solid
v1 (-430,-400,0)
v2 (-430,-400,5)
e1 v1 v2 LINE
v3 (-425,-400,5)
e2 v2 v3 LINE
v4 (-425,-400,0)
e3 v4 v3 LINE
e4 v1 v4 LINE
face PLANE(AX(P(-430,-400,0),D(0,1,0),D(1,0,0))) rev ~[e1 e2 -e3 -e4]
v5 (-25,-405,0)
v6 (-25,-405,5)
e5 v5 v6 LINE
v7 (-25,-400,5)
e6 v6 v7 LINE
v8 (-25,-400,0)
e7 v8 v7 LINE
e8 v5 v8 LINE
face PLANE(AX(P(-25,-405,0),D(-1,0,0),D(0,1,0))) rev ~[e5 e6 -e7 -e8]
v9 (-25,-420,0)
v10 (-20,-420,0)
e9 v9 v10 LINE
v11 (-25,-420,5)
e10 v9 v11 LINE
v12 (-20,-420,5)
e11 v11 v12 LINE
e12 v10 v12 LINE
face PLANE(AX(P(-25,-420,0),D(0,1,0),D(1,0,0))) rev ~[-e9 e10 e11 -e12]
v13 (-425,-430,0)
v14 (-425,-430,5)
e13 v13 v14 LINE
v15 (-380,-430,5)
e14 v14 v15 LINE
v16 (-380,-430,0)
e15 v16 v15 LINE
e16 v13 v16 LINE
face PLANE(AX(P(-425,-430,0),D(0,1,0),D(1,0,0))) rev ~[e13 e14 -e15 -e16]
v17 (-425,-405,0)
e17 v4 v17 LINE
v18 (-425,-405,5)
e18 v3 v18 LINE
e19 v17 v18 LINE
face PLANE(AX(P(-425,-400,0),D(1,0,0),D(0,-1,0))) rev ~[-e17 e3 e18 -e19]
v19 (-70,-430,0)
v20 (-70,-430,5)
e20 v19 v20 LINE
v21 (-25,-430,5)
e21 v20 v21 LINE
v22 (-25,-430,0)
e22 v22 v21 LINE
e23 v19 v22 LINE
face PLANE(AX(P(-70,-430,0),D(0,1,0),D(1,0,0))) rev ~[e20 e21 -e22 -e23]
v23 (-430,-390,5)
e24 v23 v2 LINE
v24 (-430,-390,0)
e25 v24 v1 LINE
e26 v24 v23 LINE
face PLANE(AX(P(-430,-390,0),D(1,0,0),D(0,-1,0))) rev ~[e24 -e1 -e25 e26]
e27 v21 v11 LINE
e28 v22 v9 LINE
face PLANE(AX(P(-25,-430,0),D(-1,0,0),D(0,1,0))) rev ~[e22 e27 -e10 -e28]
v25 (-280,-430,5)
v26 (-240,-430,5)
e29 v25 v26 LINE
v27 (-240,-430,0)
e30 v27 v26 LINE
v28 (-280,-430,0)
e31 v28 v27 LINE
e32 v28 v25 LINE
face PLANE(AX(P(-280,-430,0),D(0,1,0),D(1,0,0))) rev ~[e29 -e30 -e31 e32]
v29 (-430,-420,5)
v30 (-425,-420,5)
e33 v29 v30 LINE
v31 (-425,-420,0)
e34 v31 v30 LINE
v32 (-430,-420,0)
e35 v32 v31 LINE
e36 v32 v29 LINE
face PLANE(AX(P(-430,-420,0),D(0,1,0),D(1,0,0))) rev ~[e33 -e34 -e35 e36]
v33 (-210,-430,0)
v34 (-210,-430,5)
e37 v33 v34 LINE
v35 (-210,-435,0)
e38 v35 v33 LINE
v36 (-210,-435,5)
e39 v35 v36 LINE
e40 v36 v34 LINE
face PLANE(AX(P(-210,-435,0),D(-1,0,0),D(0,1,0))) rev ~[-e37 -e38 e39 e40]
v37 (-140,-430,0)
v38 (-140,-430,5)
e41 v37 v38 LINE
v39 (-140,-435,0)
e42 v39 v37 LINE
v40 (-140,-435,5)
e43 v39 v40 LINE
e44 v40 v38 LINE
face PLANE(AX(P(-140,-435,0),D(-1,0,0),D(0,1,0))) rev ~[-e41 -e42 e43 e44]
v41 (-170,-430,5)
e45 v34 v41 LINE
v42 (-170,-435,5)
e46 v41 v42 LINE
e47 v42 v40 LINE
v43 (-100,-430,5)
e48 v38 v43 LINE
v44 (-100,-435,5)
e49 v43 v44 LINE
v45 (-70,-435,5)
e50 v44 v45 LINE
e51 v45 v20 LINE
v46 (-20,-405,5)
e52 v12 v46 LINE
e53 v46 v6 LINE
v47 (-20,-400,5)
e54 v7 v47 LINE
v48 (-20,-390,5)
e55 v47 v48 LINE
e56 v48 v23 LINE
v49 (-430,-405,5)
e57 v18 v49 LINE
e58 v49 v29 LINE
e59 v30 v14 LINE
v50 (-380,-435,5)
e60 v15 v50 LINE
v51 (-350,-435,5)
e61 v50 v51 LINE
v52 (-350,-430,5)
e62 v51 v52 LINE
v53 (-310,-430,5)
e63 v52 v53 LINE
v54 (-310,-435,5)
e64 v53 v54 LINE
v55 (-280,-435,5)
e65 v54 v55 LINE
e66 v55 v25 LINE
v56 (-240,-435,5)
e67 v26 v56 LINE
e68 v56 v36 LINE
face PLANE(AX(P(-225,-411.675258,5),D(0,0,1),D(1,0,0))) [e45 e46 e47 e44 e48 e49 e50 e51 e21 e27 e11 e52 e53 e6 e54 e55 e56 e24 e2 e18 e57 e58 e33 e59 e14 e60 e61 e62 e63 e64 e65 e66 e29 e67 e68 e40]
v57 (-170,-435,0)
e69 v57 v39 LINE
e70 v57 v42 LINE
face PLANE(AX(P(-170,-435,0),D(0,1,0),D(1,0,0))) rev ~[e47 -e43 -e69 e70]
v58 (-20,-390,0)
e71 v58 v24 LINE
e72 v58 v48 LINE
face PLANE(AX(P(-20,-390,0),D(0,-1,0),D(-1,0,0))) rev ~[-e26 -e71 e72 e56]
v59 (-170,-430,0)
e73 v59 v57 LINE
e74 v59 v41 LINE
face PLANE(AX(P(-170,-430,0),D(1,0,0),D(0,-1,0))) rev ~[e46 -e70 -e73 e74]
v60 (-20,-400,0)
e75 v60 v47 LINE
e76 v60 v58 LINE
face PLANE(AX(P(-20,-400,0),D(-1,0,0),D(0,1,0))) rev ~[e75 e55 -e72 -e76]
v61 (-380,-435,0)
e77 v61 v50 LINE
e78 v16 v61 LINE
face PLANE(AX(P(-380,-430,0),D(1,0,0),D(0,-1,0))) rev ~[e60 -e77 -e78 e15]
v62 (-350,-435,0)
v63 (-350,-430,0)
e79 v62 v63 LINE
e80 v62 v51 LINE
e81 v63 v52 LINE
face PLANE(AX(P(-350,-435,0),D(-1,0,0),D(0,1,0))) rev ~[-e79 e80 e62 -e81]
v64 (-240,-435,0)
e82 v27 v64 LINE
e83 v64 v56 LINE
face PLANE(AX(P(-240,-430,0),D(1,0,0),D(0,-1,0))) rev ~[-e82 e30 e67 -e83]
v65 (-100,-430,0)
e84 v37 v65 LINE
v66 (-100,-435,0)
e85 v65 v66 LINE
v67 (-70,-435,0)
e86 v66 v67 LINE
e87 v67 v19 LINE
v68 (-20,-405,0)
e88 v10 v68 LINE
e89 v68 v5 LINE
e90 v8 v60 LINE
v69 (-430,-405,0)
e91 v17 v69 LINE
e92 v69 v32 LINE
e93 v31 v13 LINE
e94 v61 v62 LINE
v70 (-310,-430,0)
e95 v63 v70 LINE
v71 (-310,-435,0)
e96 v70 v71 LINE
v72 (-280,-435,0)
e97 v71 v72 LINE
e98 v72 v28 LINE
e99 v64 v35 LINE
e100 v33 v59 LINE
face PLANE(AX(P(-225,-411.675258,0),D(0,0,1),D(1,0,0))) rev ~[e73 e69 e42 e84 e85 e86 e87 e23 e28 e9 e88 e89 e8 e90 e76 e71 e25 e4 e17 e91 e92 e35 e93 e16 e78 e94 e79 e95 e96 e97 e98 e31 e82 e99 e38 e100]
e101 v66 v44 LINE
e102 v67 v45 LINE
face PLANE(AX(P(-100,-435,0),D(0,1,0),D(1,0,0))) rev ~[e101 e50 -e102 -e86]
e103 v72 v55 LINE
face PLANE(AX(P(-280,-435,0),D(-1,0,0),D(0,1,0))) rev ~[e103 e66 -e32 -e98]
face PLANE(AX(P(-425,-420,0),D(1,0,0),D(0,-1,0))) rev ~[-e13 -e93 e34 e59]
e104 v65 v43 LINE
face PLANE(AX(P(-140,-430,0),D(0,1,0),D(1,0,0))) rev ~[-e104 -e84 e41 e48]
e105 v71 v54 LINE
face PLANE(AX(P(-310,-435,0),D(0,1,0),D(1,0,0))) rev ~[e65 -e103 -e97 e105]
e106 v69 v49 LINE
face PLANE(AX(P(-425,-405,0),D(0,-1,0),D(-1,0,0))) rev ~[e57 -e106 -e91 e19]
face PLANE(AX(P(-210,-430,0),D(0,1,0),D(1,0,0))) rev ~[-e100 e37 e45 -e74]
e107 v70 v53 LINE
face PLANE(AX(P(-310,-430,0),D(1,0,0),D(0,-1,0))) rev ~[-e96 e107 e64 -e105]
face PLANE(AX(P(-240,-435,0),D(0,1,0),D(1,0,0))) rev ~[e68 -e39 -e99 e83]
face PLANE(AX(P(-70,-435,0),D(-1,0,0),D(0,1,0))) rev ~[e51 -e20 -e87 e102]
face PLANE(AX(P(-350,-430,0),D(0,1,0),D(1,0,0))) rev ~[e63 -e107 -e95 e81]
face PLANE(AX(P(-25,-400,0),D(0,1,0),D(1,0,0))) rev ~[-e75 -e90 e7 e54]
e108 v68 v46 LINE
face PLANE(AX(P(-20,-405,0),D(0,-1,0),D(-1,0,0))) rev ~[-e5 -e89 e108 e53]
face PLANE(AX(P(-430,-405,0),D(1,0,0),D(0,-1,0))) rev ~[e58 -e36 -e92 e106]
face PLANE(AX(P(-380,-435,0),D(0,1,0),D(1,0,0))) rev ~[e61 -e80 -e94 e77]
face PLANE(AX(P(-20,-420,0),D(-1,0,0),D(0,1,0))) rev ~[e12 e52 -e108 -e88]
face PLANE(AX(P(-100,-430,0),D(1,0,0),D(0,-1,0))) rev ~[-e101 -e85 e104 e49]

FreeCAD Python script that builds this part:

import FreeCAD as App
import Part
import Sketcher

V = App.Vector


def add_polygon(sketch, points):
    """Adds a closed chain of lines whose ends are joined by coincident constraints."""
    first, n = sketch.GeometryCount, len(points)
    for a, b in zip(points, points[1:] + points[:1]):
        sketch.addGeometry(Part.LineSegment(App.Vector(*a, 0), App.Vector(*b, 0)), False)
    for i in range(n):
        sketch.addConstraint(Sketcher.Constraint("Coincident", first + i, 2, first + (i + 1) % n, 1))

doc = App.newDocument("Part")
body = doc.addObject("PartDesign::Body", "Body")

sketch1 = body.newObject("Sketcher::SketchObject", "Sketch")
sketch1.AttachmentSupport = (doc.getObject("XY_Plane"), [""])
sketch1.MapMode = "FlatFace"
add_polygon(sketch1, [(-425, -420), (-425, -430), (-380, -430), (-380, -435), (-350, -435), (-350, -430), (-310, -430), (-310, -435), (-280, -435), (-280, -430), (-240, -430), (-240, -435), (-210, -435), (-210, -430), (-170, -430), (-170, -435), (-140, -435), (-140, -430), (-100, -430), (-100, -435), (-70, -435), (-70, -430), (-25, -430), (-25, -420), (-20, -420), (-20, -405), (-25, -405), (-25, -400), (-20, -400), (-20, -390), (-430, -390), (-430, -400), (-425, -400), (-425, -405), (-430, -405), (-430, -420)])
sketch1.addConstraint([
    Sketcher.Constraint("Vertical", 0),
    Sketcher.Constraint("Horizontal", 1),
    Sketcher.Constraint("Vertical", 2),
    Sketcher.Constraint("Horizontal", 3),
    Sketcher.Constraint("Vertical", 4),
    Sketcher.Constraint("Horizontal", 5),
    Sketcher.Constraint("Vertical", 6),
    Sketcher.Constraint("Horizontal", 7),
    Sketcher.Constraint("Vertical", 8),
    Sketcher.Constraint("Horizontal", 9),
    Sketcher.Constraint("Vertical", 10),
    Sketcher.Constraint("Horizontal", 11),
    Sketcher.Constraint("Vertical", 12),
    Sketcher.Constraint("Horizontal", 13),
    Sketcher.Constraint("Vertical", 14),
    Sketcher.Constraint("Horizontal", 15),
    Sketcher.Constraint("Vertical", 16),
    Sketcher.Constraint("Horizontal", 17),
    Sketcher.Constraint("Vertical", 18),
    Sketcher.Constraint("Horizontal", 19),
    Sketcher.Constraint("Vertical", 20),
    Sketcher.Constraint("Horizontal", 21),
    Sketcher.Constraint("Vertical", 22),
    Sketcher.Constraint("Horizontal", 23),
    Sketcher.Constraint("Vertical", 24),
    Sketcher.Constraint("Horizontal", 25),
    Sketcher.Constraint("Vertical", 26),
    Sketcher.Constraint("Horizontal", 27),
    Sketcher.Constraint("Vertical", 28),
    Sketcher.Constraint("Horizontal", 29),
    Sketcher.Constraint("Vertical", 30),
    Sketcher.Constraint("Horizontal", 31),
    Sketcher.Constraint("Vertical", 32),
    Sketcher.Constraint("Horizontal", 33),
    Sketcher.Constraint("Vertical", 34),
    Sketcher.Constraint("Horizontal", 35),
    Sketcher.Constraint("Horizontal", 1, 2, 4, 2),
    Sketcher.Constraint("Horizontal", 3, 2, 6, 2),
    Sketcher.Constraint("Horizontal", 5, 2, 8, 2),
    Sketcher.Constraint("Horizontal", 7, 2, 10, 2),
    Sketcher.Constraint("Horizontal", 9, 2, 12, 2),
    Sketcher.Constraint("Horizontal", 11, 2, 14, 2),
    Sketcher.Constraint("Horizontal", 13, 2, 16, 2),
    Sketcher.Constraint("Horizontal", 15, 2, 18, 2),
    Sketcher.Constraint("Horizontal", 17, 2, 20, 2),
    Sketcher.Constraint("Horizontal", 27, 2, 30, 2),
    Sketcher.Constraint("Horizontal", 25, 2, 32, 2),
    Sketcher.Constraint("Horizontal", 23, 2, 34, 2),
    Sketcher.Constraint("Vertical", 22, 2, 25, 2),
    Sketcher.Constraint("Vertical", 24, 2, 27, 2),
    Sketcher.Constraint("Vertical", 0, 2, 31, 2),
    Sketcher.Constraint("Vertical", 30, 2, 33, 2),
    Sketcher.Constraint("Equal", 3, 7),
    Sketcher.Constraint("Equal", 5, 9),
    Sketcher.Constraint("Equal", 7, 11),
    Sketcher.Constraint("Equal", 9, 13),
    Sketcher.Constraint("Equal", 11, 15),
    Sketcher.Constraint("Equal", 13, 17),
    Sketcher.Constraint("Equal", 15, 19),
    Sketcher.Constraint("Equal", 1, 21),
    Sketcher.Constraint("Equal", 27, 31),
    Sketcher.Constraint("Equal", 35, 2),
    Sketcher.Constraint("Equal", 20, 26),
    Sketcher.Constraint("Equal", 22, 28),
    Sketcher.Constraint("DistanceX", 1, 1, 1, 2, 45.0),
    Sketcher.Constraint("DistanceX", 3, 1, 3, 2, 30.0),
    Sketcher.Constraint("DistanceX", 5, 1, 5, 2, 40.0),
    Sketcher.Constraint("DistanceX", 23, 1, 23, 2, 5.0),
    Sketcher.Constraint("DistanceY", 0, 2, 0, 1, 10.0),
    Sketcher.Constraint("DistanceY", 24, 1, 24, 2, 15.0),
    Sketcher.Constraint("DistanceX", 0, 2, -1, 1, 425.0),
    Sketcher.Constraint("DistanceY", 0, 2, -1, 1, 430.0),
])
pad1 = body.newObject("PartDesign::Pad", "Pad")
pad1.Profile = sketch1
pad1.Length = 5

doc.recompute()
